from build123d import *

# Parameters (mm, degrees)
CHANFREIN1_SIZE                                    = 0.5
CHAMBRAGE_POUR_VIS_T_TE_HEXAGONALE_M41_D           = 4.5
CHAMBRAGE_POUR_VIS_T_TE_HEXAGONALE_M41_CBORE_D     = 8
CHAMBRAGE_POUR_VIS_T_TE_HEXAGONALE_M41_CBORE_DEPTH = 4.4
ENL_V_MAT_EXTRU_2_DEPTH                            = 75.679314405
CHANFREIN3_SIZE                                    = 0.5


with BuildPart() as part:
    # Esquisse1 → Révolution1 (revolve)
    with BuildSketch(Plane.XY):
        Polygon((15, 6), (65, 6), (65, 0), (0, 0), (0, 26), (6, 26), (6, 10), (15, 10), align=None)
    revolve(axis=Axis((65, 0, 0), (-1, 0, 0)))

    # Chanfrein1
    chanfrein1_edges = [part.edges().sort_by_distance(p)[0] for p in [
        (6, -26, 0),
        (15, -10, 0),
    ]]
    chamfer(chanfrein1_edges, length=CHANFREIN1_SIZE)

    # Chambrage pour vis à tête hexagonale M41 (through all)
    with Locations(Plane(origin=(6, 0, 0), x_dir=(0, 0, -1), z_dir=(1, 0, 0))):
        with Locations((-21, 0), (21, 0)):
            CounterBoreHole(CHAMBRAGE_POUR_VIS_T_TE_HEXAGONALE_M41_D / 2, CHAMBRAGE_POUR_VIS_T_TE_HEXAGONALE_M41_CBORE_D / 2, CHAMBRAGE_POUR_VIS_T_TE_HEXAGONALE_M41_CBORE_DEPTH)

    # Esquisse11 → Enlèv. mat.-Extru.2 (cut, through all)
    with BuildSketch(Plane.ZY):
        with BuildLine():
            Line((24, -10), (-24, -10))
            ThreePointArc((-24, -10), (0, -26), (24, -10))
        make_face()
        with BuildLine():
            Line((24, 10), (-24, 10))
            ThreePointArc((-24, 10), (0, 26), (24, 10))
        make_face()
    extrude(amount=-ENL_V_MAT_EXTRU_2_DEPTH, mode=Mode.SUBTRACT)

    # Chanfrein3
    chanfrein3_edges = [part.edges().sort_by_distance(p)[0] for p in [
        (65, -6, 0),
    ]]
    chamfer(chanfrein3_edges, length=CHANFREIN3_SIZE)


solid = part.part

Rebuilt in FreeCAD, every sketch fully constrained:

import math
import FreeCAD as App
import Part
import Sketcher
from FreeCAD import Vector


def edges_at(feature, points):
    """Names of the edges that pass closest to the given points."""
    edges = feature.Shape.Edges
    near = lambda p: min(range(len(edges)), key=lambda i: edges[i].distToShape(Part.Vertex(*p))[0])
    return sorted({f"Edge{near(p) + 1}" for p in points})

doc = App.newDocument("Part")
body = doc.addObject("PartDesign::Body", "Body")

sketch1 = body.newObject("Sketcher::SketchObject", "Sketch")
sketch1.AttachmentSupport = (doc.getObject("XY_Plane"), [""])
sketch1.MapMode = "FlatFace"
sketch1.addGeometry([
    Part.LineSegment(Vector(65, 6, 0), Vector(15, 6, 0)),
    Part.LineSegment(Vector(15, 6, 0), Vector(15, 10, 0)),
    Part.LineSegment(Vector(15, 10, 0), Vector(6, 10, 0)),
    Part.LineSegment(Vector(6, 10, 0), Vector(6, 26, 0)),
    Part.LineSegment(Vector(6, 26, 0), Vector(0, 26, 0)),
    Part.LineSegment(Vector(0, 26, 0), Vector(0, 0, 0)),
    Part.LineSegment(Vector(0, 0, 0), Vector(65, 0, 0)),
    Part.LineSegment(Vector(65, 0, 0), Vector(65, 6, 0)),
], False)
sketch1.addConstraint([
    Sketcher.Constraint("Coincident", 0, 2, 1, 1),
    Sketcher.Constraint("Coincident", 1, 2, 2, 1),
    Sketcher.Constraint("Coincident", 2, 2, 3, 1),
    Sketcher.Constraint("Coincident", 3, 2, 4, 1),
    Sketcher.Constraint("Coincident", 4, 2, 5, 1),
    Sketcher.Constraint("Coincident", 5, 2, 6, 1),
    Sketcher.Constraint("Coincident", 6, 2, 7, 1),
    Sketcher.Constraint("Coincident", 7, 2, 0, 1),
    Sketcher.Constraint("Horizontal", 0),
    Sketcher.Constraint("Vertical", 1),
    Sketcher.Constraint("Horizontal", 2),
    Sketcher.Constraint("Vertical", 3),
    Sketcher.Constraint("Horizontal", 4),
    Sketcher.Constraint("Vertical", 5),
    Sketcher.Constraint("Horizontal", 6),
    Sketcher.Constraint("Vertical", 7),
    Sketcher.Constraint("Coincident", 5, 2, -1, 1),
    Sketcher.Constraint("Equal", 4, 7),
    Sketcher.Constraint("DistanceX", 0, 2, 0, 1, 50.0),
    Sketcher.Constraint("DistanceX", 2, 2, 2, 1, 9.0),
    Sketcher.Constraint("DistanceX", 4, 2, 4, 1, 6.0),
    Sketcher.Constraint("DistanceY", 1, 1, 1, 2, 4.0),
    Sketcher.Constraint("DistanceY", 3, 1, 3, 2, 16.0),
])
revolution = body.newObject("PartDesign::Revolution", "Revolution")
revolution.Profile = sketch1
revolution.ReferenceAxis = (sketch1, ["H_Axis"])
revolution.Angle = 360
doc.recompute()

chamfer = body.newObject("PartDesign::Chamfer", "Chamfer")
chamfer.Base = (revolution, edges_at(revolution, [(6, -26, 0), (15, -10, 0)]))
chamfer.Size = 0.5

sketch2 = body.newObject("Sketcher::SketchObject", "Sketch001")
sketch2.AttachmentSupport = (doc.getObject("YZ_Plane"), [""])
sketch2.MapMode = "FlatFace"
sketch2.AttachmentOffset = App.Placement(Vector(0, 0, 6), App.Rotation())
sketch2.addGeometry([
    Part.Circle(Vector(0, 21, 0), Vector(0, 0, 1), 2.2),
    Part.Circle(Vector(0, -21, 0), Vector(0, 0, 1), 2.2),
], False)
sketch2.addConstraint([
    Sketcher.Constraint("Equal", 0, 1),
    Sketcher.Constraint("Symmetric", 0, 3, 1, 3, -1, 1),
    Sketcher.Constraint("PointOnObject", 0, 3, -2),
    Sketcher.Constraint("Diameter", 0, 4.5),
    Sketcher.Constraint("DistanceY", -1, 1, 0, 3, 21.0),
])
doc.recompute()
hole = body.newObject("PartDesign::Hole", "Hole")
hole.Profile = sketch2
hole.ThreadType = "None"
hole.Diameter = 4.5
hole.DepthType = "ThroughAll"
hole.HoleCutType = "Counterbore"
hole.HoleCutDiameter = 8
hole.HoleCutDepth = 4.4

sketch3 = body.newObject("Sketcher::SketchObject", "Sketch002")
sketch3.AttachmentSupport = (doc.getObject("YZ_Plane"), [""])
sketch3.MapMode = "FlatFace"
sketch3.addGeometry([
    Part.LineSegment(Vector(-10, 24, 0), Vector(-10, -24, 0)),
    Part.ArcOfCircle(Part.Circle(Vector(0, 0, 0), Vector(0, 0, 1), 26), math.radians(113), math.radians(247)),
    Part.LineSegment(Vector(10, -24, 0), Vector(10, 24, 0)),
    Part.ArcOfCircle(Part.Circle(Vector(0, 0, 0), Vector(0, 0, 1), 26), math.radians(-67), math.radians(67)),
], False)
sketch3.addConstraint([
    Sketcher.Constraint("Coincident", 0, 1, 1, 1),
    Sketcher.Constraint("Coincident", 1, 2, 0, 2),
    Sketcher.Constraint("Coincident", 2, 1, 3, 1),
    Sketcher.Constraint("Coincident", 3, 2, 2, 2),
    Sketcher.Constraint("Vertical", 0),
    Sketcher.Constraint("Vertical", 2),
    Sketcher.Constraint("Coincident", 1, 3, -1, 1),
    Sketcher.Constraint("Coincident", 3, 3, -1, 1),
    Sketcher.Constraint("Equal", 1, 3),
    Sketcher.Constraint("Horizontal", 1, 2, 2, 1),
    Sketcher.Constraint("Radius", 1, 26.0),
    Sketcher.Constraint("DistanceY", 0, 2, 0, 1, 48.0),
])
pocket1 = body.newObject("PartDesign::Pocket", "Pocket")
pocket1.Profile = sketch3
pocket1.Type = "ThroughAll"
pocket1.Reversed = True
doc.recompute()

chamfer2 = body.newObject("PartDesign::Chamfer", "Chamfer001")
chamfer2.Base = (pocket1, edges_at(pocket1, [(65, -6, 0)]))
chamfer2.Size = 0.5

doc.recompute()
